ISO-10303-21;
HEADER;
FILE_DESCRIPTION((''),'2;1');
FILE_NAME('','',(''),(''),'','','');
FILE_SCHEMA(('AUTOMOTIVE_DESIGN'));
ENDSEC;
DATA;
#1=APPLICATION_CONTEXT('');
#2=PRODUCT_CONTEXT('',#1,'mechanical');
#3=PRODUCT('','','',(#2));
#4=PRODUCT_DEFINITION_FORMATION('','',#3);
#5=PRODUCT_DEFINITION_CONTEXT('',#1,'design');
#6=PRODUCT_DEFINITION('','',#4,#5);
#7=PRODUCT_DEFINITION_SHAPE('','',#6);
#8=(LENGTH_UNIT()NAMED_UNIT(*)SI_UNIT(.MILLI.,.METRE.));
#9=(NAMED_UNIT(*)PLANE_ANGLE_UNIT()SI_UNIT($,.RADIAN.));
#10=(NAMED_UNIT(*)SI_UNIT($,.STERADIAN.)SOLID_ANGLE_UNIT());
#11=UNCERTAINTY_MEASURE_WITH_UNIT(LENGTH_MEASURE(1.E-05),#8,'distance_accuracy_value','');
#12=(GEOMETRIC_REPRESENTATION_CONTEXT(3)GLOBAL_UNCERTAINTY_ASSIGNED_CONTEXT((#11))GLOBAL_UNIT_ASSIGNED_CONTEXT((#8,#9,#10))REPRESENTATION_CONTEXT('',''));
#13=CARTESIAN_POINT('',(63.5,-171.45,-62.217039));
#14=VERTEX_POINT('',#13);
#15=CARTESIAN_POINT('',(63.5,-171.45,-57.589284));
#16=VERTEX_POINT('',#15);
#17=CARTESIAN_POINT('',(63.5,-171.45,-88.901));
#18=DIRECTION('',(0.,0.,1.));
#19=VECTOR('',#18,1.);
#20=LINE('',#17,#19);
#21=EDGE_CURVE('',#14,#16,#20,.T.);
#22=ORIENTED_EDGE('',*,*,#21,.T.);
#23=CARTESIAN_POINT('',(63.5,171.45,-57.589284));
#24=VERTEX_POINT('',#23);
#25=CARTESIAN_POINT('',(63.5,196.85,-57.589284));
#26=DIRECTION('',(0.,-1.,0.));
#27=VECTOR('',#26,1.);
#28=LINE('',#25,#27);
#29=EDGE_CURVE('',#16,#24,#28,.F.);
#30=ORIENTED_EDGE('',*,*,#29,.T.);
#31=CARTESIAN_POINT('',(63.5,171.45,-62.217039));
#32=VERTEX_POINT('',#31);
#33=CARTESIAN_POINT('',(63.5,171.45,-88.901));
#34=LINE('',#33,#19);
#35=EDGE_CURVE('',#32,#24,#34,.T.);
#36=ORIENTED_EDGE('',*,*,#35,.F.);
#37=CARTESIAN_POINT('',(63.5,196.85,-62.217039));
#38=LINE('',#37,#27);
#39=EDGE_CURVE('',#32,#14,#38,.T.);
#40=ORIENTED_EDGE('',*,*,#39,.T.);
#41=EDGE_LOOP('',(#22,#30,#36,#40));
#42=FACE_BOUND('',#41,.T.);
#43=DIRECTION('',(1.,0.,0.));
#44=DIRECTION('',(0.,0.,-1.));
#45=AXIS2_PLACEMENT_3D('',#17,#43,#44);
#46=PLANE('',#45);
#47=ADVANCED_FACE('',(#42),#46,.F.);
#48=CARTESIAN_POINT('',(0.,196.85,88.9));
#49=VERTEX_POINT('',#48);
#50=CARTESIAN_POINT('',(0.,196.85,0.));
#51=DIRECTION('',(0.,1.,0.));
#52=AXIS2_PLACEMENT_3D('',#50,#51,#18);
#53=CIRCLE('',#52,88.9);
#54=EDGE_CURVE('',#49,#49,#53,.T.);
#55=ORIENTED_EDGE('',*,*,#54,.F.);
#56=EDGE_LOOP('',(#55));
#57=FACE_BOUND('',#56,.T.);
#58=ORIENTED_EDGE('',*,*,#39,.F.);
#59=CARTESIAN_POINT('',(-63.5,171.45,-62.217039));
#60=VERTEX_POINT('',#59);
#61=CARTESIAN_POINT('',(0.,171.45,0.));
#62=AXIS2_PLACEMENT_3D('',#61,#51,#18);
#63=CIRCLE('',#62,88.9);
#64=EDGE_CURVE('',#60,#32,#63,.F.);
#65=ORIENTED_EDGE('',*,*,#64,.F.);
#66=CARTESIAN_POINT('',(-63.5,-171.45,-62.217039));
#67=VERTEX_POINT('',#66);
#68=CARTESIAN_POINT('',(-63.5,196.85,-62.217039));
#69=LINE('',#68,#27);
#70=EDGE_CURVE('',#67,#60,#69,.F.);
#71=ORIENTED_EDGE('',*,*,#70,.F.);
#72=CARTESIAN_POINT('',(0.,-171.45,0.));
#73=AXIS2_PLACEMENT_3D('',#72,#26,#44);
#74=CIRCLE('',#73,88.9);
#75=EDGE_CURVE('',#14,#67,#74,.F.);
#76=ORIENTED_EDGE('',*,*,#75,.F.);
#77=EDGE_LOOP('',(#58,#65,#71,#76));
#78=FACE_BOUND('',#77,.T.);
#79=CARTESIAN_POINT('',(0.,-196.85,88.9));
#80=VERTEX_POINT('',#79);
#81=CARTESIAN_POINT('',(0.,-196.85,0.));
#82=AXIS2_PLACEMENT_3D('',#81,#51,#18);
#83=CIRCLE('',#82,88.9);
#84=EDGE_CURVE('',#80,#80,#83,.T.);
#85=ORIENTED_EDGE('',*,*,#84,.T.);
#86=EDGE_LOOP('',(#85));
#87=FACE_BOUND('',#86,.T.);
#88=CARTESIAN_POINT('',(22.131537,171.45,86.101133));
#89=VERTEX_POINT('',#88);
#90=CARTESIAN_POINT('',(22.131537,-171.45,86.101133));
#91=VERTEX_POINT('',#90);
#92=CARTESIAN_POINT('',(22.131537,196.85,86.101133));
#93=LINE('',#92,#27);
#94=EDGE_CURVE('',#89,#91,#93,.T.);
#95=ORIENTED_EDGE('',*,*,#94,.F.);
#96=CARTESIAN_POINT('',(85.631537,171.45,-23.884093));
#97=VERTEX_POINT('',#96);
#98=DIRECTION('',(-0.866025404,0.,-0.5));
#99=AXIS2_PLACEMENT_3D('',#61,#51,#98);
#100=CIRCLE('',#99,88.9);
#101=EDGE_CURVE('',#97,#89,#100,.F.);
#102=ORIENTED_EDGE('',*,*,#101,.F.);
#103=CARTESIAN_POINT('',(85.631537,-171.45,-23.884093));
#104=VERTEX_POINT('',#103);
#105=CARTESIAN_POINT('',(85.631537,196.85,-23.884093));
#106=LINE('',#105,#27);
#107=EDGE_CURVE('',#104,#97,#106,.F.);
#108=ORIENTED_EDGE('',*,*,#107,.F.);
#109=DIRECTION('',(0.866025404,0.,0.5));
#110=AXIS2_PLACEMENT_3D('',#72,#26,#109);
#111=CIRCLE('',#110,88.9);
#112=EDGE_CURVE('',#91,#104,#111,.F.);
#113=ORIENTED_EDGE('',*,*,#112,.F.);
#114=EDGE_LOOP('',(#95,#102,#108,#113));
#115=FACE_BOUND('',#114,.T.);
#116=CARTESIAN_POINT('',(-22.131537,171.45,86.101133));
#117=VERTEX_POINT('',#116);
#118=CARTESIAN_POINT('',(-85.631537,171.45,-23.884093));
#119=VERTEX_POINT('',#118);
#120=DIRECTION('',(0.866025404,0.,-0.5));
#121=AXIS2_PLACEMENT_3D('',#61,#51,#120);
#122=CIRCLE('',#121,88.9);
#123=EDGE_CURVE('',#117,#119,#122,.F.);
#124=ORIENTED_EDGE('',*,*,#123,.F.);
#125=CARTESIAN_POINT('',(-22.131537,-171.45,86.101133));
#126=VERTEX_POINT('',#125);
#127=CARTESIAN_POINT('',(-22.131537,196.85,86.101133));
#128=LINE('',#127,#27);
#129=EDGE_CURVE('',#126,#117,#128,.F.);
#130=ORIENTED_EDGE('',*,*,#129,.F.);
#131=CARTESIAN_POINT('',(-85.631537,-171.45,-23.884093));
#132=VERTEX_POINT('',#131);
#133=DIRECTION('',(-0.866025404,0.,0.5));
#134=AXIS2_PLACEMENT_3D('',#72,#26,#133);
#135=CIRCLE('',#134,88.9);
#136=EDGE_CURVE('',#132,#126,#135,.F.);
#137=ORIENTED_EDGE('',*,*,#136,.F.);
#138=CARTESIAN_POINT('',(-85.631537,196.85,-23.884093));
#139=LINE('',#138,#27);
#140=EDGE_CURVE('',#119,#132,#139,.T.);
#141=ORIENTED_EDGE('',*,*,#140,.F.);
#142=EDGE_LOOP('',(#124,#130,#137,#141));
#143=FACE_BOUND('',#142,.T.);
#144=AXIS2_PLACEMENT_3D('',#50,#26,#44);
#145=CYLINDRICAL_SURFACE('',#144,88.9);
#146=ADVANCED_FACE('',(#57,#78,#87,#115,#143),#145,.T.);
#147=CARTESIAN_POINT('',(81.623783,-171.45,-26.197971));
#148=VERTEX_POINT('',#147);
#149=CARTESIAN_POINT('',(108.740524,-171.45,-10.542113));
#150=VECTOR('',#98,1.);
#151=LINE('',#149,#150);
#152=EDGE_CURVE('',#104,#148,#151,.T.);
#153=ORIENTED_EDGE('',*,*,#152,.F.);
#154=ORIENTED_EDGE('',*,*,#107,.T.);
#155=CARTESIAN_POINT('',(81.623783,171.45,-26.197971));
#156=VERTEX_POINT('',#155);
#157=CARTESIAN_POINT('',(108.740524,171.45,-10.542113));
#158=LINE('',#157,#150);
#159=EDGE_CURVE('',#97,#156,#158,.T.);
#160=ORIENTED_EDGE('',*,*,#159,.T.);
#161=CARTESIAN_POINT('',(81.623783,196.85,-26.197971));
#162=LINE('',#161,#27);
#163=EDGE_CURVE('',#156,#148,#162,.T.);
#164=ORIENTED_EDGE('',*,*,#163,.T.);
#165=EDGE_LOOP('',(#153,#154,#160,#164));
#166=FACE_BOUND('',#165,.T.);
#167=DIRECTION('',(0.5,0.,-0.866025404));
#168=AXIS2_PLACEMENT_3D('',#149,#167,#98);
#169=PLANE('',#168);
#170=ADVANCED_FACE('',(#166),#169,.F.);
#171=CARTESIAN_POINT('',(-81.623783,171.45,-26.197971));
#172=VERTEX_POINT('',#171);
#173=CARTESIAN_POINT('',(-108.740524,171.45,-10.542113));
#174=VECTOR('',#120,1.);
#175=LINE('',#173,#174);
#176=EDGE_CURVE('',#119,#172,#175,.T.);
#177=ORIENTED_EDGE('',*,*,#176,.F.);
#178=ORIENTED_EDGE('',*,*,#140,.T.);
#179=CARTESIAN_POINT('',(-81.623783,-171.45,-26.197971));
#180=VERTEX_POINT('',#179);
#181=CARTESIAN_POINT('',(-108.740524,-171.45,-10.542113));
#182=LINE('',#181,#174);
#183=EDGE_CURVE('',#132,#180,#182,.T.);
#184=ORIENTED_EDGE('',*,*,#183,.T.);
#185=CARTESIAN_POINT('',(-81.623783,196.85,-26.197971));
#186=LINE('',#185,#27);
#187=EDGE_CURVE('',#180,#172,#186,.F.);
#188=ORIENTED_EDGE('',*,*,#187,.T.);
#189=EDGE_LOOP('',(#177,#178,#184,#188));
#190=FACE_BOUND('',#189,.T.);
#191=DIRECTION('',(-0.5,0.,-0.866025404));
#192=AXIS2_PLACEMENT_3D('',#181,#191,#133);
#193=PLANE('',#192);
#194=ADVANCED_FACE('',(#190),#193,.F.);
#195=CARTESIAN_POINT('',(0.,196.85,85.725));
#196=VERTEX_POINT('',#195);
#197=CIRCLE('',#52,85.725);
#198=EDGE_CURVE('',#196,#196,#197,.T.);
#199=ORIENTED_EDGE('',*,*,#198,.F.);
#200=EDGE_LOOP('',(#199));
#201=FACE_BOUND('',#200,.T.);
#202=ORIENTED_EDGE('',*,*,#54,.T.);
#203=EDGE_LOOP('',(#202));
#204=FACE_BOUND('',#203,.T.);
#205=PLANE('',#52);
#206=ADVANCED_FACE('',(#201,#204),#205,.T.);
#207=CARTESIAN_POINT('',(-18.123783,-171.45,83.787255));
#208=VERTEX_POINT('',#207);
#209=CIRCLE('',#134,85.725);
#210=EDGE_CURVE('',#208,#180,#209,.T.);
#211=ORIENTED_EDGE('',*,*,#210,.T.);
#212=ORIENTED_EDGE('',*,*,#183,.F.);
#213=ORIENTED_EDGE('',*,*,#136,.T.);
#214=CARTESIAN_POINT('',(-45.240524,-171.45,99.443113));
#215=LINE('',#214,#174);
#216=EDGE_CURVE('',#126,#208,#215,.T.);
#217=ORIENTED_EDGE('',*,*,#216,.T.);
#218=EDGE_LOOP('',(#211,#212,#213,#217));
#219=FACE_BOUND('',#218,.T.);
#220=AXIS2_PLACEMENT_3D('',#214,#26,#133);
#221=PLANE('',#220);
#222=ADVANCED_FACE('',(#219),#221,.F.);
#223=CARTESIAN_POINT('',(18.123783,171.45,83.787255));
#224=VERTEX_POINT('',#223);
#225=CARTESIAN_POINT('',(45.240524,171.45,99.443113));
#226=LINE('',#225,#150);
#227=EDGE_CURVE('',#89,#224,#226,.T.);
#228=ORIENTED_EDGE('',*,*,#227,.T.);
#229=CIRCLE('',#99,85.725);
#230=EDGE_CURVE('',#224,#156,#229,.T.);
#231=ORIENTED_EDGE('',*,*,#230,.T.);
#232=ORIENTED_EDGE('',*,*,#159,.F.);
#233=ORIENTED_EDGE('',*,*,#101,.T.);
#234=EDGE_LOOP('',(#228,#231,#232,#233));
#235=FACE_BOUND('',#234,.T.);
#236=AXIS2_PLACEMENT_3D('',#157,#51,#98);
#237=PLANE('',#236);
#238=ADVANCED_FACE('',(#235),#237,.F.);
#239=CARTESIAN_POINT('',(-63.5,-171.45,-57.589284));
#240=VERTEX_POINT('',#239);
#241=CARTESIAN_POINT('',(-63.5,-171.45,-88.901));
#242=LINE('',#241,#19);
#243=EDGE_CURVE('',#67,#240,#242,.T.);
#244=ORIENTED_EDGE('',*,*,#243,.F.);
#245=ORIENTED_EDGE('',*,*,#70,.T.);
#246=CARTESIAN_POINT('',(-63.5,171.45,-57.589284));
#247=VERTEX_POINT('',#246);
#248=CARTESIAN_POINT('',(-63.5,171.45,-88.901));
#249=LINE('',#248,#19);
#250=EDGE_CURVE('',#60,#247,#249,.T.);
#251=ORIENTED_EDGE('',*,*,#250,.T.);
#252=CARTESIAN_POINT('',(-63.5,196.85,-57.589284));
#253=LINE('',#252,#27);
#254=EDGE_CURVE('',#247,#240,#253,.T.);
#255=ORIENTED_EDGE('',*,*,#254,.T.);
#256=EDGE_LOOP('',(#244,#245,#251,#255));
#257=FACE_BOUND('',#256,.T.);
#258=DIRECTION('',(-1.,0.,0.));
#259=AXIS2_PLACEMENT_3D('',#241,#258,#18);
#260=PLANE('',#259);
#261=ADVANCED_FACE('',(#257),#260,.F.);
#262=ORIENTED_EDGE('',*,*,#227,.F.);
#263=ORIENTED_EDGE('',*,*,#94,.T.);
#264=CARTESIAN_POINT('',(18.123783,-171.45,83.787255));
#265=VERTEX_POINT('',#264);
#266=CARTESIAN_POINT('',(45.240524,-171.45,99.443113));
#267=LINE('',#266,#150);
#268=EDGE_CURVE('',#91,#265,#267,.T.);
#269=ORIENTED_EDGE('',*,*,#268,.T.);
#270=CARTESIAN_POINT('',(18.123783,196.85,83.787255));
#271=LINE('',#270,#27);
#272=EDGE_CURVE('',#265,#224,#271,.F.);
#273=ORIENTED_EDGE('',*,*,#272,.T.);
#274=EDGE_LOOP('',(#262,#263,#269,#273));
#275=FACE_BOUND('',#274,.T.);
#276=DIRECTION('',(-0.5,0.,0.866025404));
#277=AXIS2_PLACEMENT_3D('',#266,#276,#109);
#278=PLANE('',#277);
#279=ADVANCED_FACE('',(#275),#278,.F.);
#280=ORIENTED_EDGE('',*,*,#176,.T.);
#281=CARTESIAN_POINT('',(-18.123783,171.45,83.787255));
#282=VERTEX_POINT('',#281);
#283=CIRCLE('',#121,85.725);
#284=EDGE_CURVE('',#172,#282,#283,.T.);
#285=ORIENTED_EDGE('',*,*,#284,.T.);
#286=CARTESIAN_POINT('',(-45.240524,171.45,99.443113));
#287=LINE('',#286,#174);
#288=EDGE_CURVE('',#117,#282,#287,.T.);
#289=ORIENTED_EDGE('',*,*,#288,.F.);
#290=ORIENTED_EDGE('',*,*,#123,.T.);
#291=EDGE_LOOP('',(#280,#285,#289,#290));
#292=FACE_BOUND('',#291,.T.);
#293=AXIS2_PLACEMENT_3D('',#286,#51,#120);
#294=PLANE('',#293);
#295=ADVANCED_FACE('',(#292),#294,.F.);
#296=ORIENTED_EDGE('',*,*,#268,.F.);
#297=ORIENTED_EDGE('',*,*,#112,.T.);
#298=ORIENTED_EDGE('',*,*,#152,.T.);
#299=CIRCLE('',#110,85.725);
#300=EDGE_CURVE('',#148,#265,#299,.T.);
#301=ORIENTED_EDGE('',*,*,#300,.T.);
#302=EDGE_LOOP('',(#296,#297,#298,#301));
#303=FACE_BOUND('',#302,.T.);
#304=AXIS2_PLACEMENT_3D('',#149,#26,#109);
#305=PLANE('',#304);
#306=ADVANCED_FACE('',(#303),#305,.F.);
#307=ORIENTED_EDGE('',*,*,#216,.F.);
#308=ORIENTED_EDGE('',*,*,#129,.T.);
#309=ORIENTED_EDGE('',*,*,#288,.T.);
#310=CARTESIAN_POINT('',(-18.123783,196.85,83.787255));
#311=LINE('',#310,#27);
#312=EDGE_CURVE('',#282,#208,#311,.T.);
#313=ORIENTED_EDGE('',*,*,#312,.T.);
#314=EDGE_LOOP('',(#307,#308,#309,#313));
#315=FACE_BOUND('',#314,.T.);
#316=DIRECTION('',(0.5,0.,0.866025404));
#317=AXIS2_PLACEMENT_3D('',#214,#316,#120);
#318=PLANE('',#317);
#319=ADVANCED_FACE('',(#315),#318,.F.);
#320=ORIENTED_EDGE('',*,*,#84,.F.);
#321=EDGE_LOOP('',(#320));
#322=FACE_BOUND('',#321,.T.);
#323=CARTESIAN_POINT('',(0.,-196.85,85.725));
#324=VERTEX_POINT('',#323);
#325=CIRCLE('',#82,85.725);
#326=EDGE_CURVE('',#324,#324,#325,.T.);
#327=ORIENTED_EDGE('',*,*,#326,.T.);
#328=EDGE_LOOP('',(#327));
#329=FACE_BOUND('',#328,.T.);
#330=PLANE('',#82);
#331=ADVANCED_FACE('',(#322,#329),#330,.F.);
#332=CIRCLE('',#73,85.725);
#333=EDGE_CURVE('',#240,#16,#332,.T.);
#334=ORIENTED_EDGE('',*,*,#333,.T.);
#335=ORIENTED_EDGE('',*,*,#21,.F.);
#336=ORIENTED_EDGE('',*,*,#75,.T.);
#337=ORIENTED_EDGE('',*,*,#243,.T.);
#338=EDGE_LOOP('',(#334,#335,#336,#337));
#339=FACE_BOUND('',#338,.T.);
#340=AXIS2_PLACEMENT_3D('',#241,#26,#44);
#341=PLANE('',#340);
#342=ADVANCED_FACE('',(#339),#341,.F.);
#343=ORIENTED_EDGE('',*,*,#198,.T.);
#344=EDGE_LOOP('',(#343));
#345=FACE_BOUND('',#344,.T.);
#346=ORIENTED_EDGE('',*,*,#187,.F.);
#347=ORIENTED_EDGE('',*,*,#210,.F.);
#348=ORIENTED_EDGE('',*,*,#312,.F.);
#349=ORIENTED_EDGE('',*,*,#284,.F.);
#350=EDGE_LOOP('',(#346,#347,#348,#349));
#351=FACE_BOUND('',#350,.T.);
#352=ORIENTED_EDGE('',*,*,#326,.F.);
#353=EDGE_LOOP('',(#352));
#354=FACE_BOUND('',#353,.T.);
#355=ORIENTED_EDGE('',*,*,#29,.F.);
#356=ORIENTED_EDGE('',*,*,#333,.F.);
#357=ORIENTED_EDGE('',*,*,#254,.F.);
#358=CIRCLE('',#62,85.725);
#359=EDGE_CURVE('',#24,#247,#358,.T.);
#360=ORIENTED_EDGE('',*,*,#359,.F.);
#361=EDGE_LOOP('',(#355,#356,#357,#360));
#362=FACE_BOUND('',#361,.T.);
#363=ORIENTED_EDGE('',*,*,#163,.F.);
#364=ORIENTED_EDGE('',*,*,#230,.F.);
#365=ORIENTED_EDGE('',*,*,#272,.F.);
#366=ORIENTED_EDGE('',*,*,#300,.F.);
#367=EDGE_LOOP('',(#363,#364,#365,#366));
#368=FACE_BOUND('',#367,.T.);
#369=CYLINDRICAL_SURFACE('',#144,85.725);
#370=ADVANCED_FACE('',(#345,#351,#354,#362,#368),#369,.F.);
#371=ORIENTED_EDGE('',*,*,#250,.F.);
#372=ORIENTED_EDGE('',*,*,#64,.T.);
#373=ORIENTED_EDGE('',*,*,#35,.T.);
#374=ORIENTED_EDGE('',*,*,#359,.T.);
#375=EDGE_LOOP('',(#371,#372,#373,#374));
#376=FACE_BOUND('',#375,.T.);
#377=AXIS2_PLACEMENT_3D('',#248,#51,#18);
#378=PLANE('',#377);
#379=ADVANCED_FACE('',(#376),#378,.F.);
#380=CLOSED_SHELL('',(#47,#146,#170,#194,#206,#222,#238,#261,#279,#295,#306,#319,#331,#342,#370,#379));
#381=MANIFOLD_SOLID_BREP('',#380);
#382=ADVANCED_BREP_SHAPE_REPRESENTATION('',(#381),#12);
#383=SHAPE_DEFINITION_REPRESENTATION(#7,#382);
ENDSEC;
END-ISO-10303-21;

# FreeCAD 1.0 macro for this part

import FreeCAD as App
import Part
import Sketcher

V = App.Vector
Q = App.Units.Quantity

doc = App.newDocument("Part")
body = doc.addObject("PartDesign::Body", "Body")

# Sketch on XZ plane
sketch1 = body.newObject("Sketcher::SketchObject", "Sketch")
sketch1.AttachmentSupport = (doc.getObject("XZ_Plane"), [""])
sketch1.MapMode = "FlatFace"
sketch1.addGeometry([
    Part.Circle(V(0, 0, 0), V(0, 0, 1), 89),
    Part.Circle(V(0, 0, 0), V(0, 0, 1), 86),
], False)
sketch1.addConstraint([
    Sketcher.Constraint("Coincident", 0, 3, -1, 1),
    Sketcher.Constraint("Coincident", 1, 3, -1, 1),
    Sketcher.Constraint("Diameter", 0, Q("7 in")),
    Sketcher.Constraint("Diameter", 1, Q("6.75 in")),
])
pad1 = body.newObject("PartDesign::Pad", "Pad")
pad1.Profile = sketch1
pad1.Length = Q("15.5 in")
pad1.Midplane = True

# Sketch on XY plane
sketch2 = body.newObject("Sketcher::SketchObject", "Sketch001")
sketch2.AttachmentSupport = (doc.getObject("XY_Plane"), [""])
sketch2.MapMode = "FlatFace"
sketch2.AttachmentOffset = App.Placement(V(0, 0, -3.5 * 25.4), App.Rotation())
sketch2.addGeometry([
    Part.LineSegment(V(-64, 171, 0), V(-64, -171, 0)),
    Part.LineSegment(V(-64, -171, 0), V(64, -171, 0)),
    Part.LineSegment(V(64, -171, 0), V(64, 171, 0)),
    Part.LineSegment(V(64, 171, 0), V(-64, 171, 0)),
], False)
sketch2.addConstraint([
    Sketcher.Constraint("Coincident", 0, 2, 1, 1),
    Sketcher.Constraint("Coincident", 1, 2, 2, 1),
    Sketcher.Constraint("Coincident", 2, 2, 3, 1),
    Sketcher.Constraint("Coincident", 3, 2, 0, 1),
    Sketcher.Constraint("Vertical", 0),
    Sketcher.Constraint("Horizontal", 1),
    Sketcher.Constraint("Vertical", 2),
    Sketcher.Constraint("Horizontal", 3),
    Sketcher.Constraint("Symmetric", 0, 2, 2, 2, -1, 1),
    Sketcher.Constraint("DistanceX", 1, 1, 1, 2, Q("5 in")),
    Sketcher.Constraint("DistanceY", 0, 2, 0, 1, Q("13.5 in")),
])
pocket1 = body.newObject("PartDesign::Pocket", "Pocket")
pocket1.Profile = sketch2
pocket1.Length = 31.310716
pocket1.Reversed = True
doc.recompute()

polarpattern = body.newObject("PartDesign::PolarPattern", "PolarPattern")
polarpattern.Originals = [pocket1]
polarpattern.Axis = (doc.getObject("Y_Axis"), [""])
polarpattern.Angle = 360
polarpattern.Occurrences = 3
body.Tip = polarpattern

doc.recompute()
